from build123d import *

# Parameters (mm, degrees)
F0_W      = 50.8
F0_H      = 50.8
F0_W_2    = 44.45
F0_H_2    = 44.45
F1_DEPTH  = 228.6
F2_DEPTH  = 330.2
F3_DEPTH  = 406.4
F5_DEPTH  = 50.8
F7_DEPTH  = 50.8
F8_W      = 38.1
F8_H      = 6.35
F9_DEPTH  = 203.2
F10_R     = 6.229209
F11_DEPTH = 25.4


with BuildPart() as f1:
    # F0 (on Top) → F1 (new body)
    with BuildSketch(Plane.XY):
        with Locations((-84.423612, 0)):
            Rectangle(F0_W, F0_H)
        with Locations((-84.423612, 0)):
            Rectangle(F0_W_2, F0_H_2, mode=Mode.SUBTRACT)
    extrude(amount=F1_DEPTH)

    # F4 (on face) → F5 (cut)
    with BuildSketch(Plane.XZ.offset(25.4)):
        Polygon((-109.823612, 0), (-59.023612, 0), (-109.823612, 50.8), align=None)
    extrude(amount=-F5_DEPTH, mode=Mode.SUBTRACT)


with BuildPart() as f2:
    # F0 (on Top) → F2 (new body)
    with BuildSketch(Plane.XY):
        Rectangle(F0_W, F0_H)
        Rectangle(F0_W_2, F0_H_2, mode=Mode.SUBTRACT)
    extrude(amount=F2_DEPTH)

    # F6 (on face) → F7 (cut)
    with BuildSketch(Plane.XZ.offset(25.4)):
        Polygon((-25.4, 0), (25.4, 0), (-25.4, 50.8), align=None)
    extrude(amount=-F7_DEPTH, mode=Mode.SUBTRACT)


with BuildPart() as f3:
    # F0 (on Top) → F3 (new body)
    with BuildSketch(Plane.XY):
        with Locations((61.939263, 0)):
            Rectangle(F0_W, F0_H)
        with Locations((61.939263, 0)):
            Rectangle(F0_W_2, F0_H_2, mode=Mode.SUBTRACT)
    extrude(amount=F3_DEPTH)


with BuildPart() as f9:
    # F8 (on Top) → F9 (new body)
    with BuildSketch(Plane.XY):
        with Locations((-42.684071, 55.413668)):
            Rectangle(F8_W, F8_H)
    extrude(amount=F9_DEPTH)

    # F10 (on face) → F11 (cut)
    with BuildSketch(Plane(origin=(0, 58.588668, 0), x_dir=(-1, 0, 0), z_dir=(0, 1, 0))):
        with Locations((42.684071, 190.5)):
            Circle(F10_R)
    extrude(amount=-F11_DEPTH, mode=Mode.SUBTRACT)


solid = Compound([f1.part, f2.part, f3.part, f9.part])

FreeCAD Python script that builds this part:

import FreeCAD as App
import Part
import Sketcher

V = App.Vector
Q = App.Units.Quantity

doc = App.newDocument("Part")
params = doc.addObject("Spreadsheet::Sheet", "Params")
for row, (alias, value) in enumerate([
    ("sketch1_width", "2 in"),
    ("sketch1_width2", "1.75 in"),
    ("pad1_length", "9 in"),
    ("sketch2_width", "2 in"),
    ("pocket1_length", "2 in"),
    ("sketch3_width", "2 in"),
    ("sketch3_width2", "1.75 in"),
    ("pad2_length", "13 in"),
    ("sketch4_width", "2 in"),
    ("pocket2_length", "2 in"),
    ("sketch5_width", "2 in"),
    ("sketch5_width2", "1.75 in"),
    ("pad3_length", "16 in"),
    ("sketch6_width", "1.5 in"),
    ("sketch6_height", "0.25 in"),
    ("pad4_length", "8 in"),
    ("pocket3_length", "1 in"),
], start=1):
    params.set(f"A{row}", alias)
    params.set(f"B{row}", "=" + value)
    params.setAlias(f"B{row}", alias)

body = doc.addObject("PartDesign::Body", "Body")

# Sketch on XY plane
sketch1 = doc.addObject("Sketcher::SketchObject", "Sketch")
body.addObject(sketch1)
sketch1.AttachmentSupport = (doc.XY_Plane, [""])
sketch1.MapMode = "FlatFace"
sketch1.addGeometry([
    Part.LineSegment(V(-109.823612, 25.4, 0), V(-109.823612, -25.4, 0)),  # 0
    Part.LineSegment(V(-109.823612, -25.4, 0), V(-59.023612, -25.4, 0)),  # 1
    Part.LineSegment(V(-59.023612, -25.4, 0), V(-59.023612, 25.4, 0)),  # 2
    Part.LineSegment(V(-59.023612, 25.4, 0), V(-109.823612, 25.4, 0)),  # 3
    Part.LineSegment(V(-62.198612, -22.225, 0), V(-106.648612, -22.225, 0)),  # 4
    Part.LineSegment(V(-106.648612, -22.225, 0), V(-106.648612, 22.225, 0)),  # 5
    Part.LineSegment(V(-106.648612, 22.225, 0), V(-62.198612, 22.225, 0)),  # 6
    Part.LineSegment(V(-62.198612, 22.225, 0), V(-62.198612, -22.225, 0)),  # 7
], False)
sketch1.addConstraint([
    Sketcher.Constraint("Coincident", 0, 2, 1, 1),
    Sketcher.Constraint("Coincident", 1, 2, 2, 1),
    Sketcher.Constraint("Coincident", 2, 2, 3, 1),
    Sketcher.Constraint("Coincident", 3, 2, 0, 1),
    Sketcher.Constraint("Coincident", 4, 2, 5, 1),
    Sketcher.Constraint("Coincident", 5, 2, 6, 1),
    Sketcher.Constraint("Coincident", 6, 2, 7, 1),
    Sketcher.Constraint("Coincident", 7, 2, 4, 1),
    Sketcher.Constraint("Vertical", 0),
    Sketcher.Constraint("Horizontal", 1),
    Sketcher.Constraint("Vertical", 2),
    Sketcher.Constraint("Horizontal", 3),
    Sketcher.Constraint("Horizontal", 4),
    Sketcher.Constraint("Vertical", 5),
    Sketcher.Constraint("Horizontal", 6),
    Sketcher.Constraint("Vertical", 7),
    Sketcher.Constraint("Equal", 3, 0),
    Sketcher.Constraint("Equal", 6, 5),
    Sketcher.Constraint("DistanceX", 1, 1, 1, 2, Q("2 in")),
    Sketcher.Constraint("DistanceY", 0, 2, -1, 1, Q("1 in")),
    Sketcher.Constraint("DistanceX", 4, 2, 4, 1, Q("1.75 in")),
    Sketcher.Constraint("DistanceY", 4, 2, -1, 1, Q("0.875 in")),
    Sketcher.Constraint("DistanceX", 0, 2, 4, 2, Q("0.125 in")),
    Sketcher.Constraint("DistanceX", 0, 2, -1, 1, Q("109.823612 mm")),
])
sketch1.setExpression("Constraints[18]", "Params.sketch1_width")
sketch1.setExpression("Constraints[20]", "Params.sketch1_width2")
pad1 = doc.addObject("PartDesign::Pad", "Pad")
body.addObject(pad1)
pad1.Profile = sketch1
pad1.setExpression("Length", "Params.pad1_length")

# Sketch on XZ plane
sketch2 = doc.addObject("Sketcher::SketchObject", "Sketch001")
body.addObject(sketch2)
sketch2.AttachmentSupport = (doc.XZ_Plane, [""])
sketch2.MapMode = "FlatFace"
sketch2.AttachmentOffset = App.Placement(V(0, 0, 1 * 25.4), App.Rotation())
sketch2.addGeometry([
    Part.LineSegment(V(-109.823612, 0, 0), V(-59.023612, 0, 0)),
    Part.LineSegment(V(-59.023612, 0, 0), V(-109.823612, 50.8, 0)),
    Part.LineSegment(V(-109.823612, 50.8, 0), V(-109.823612, 0, 0)),
], False)
sketch2.addConstraint([
    Sketcher.Constraint("Coincident", 0, 2, 1, 1),
    Sketcher.Constraint("Coincident", 1, 2, 2, 1),
    Sketcher.Constraint("Coincident", 2, 2, 0, 1),
    Sketcher.Constraint("Horizontal", 0),
    Sketcher.Constraint("Vertical", 2),
    Sketcher.Constraint("PointOnObject", 0, 2, -1),
    Sketcher.Constraint("Equal", 0, 2),
    Sketcher.Constraint("DistanceX", 0, 1, 0, 2, Q("2 in")),
    Sketcher.Constraint("DistanceX", 1, 2, -1, 1, Q("109.823612 mm")),
])
sketch2.setExpression("Constraints[7]", "Params.sketch2_width")
pocket1 = doc.addObject("PartDesign::Pocket", "Pocket")
body.addObject(pocket1)
pocket1.Profile = sketch2
pocket1.setExpression("Length", "Params.pocket1_length")
body2 = doc.addObject("PartDesign::Body", "Body001")

# Sketch on XY plane
sketch3 = doc.addObject("Sketcher::SketchObject", "Sketch002")
body2.addObject(sketch3)
sketch3.AttachmentSupport = (doc.getObject("XY_Plane001"), [""])
sketch3.MapMode = "FlatFace"
sketch3.addGeometry([
    Part.LineSegment(V(-25.4, 25.4, 0), V(-25.4, -25.4, 0)),  # 0
    Part.LineSegment(V(-25.4, -25.4, 0), V(25.4, -25.4, 0)),  # 1
    Part.LineSegment(V(25.4, -25.4, 0), V(25.4, 25.4, 0)),  # 2
    Part.LineSegment(V(25.4, 25.4, 0), V(-25.4, 25.4, 0)),  # 3
    Part.LineSegment(V(22.225, -22.225, 0), V(-22.225, -22.225, 0)),  # 4
    Part.LineSegment(V(-22.225, -22.225, 0), V(-22.225, 22.225, 0)),  # 5
    Part.LineSegment(V(-22.225, 22.225, 0), V(22.225, 22.225, 0)),  # 6
    Part.LineSegment(V(22.225, 22.225, 0), V(22.225, -22.225, 0)),  # 7
], False)
sketch3.addConstraint([
    Sketcher.Constraint("Coincident", 0, 2, 1, 1),
    Sketcher.Constraint("Coincident", 1, 2, 2, 1),
    Sketcher.Constraint("Coincident", 2, 2, 3, 1),
    Sketcher.Constraint("Coincident", 3, 2, 0, 1),
    Sketcher.Constraint("Coincident", 4, 2, 5, 1),
    Sketcher.Constraint("Coincident", 5, 2, 6, 1),
    Sketcher.Constraint("Coincident", 6, 2, 7, 1),
    Sketcher.Constraint("Coincident", 7, 2, 4, 1),
    Sketcher.Constraint("Vertical", 0),
    Sketcher.Constraint("Horizontal", 1),
    Sketcher.Constraint("Vertical", 2),
    Sketcher.Constraint("Horizontal", 3),
    Sketcher.Constraint("Horizontal", 4),
    Sketcher.Constraint("Vertical", 5),
    Sketcher.Constraint("Horizontal", 6),
    Sketcher.Constraint("Vertical", 7),
    Sketcher.Constraint("Symmetric", 0, 2, 2, 2, -1, 1),
    Sketcher.Constraint("Symmetric", 4, 2, 6, 2, -1, 1),
    Sketcher.Constraint("Equal", 3, 0),
    Sketcher.Constraint("Equal", 6, 5),
    Sketcher.Constraint("DistanceX", 1, 1, 1, 2, Q("2 in")),
    Sketcher.Constraint("DistanceX", 4, 2, 4, 1, Q("1.75 in")),
])
sketch3.setExpression("Constraints[20]", "Params.sketch3_width")
sketch3.setExpression("Constraints[21]", "Params.sketch3_width2")
pad2 = doc.addObject("PartDesign::Pad", "Pad001")
body2.addObject(pad2)
pad2.Profile = sketch3
pad2.setExpression("Length", "Params.pad2_length")

# Sketch on XZ plane
sketch4 = doc.addObject("Sketcher::SketchObject", "Sketch003")
body2.addObject(sketch4)
sketch4.AttachmentSupport = (doc.getObject("XZ_Plane001"), [""])
sketch4.MapMode = "FlatFace"
sketch4.AttachmentOffset = App.Placement(V(0, 0, 1 * 25.4), App.Rotation())
sketch4.addGeometry([
    Part.LineSegment(V(-25.4, 0, 0), V(25.4, 0, 0)),
    Part.LineSegment(V(25.4, 0, 0), V(-25.4, 50.8, 0)),
    Part.LineSegment(V(-25.4, 50.8, 0), V(-25.4, 0, 0)),
], False)
sketch4.addConstraint([
    Sketcher.Constraint("Coincident", 0, 2, 1, 1),
    Sketcher.Constraint("Coincident", 1, 2, 2, 1),
    Sketcher.Constraint("Coincident", 2, 2, 0, 1),
    Sketcher.Constraint("Horizontal", 0),
    Sketcher.Constraint("Vertical", 2),
    Sketcher.Constraint("Symmetric", 0, 2, 2, 2, -1, 1),
    Sketcher.Constraint("Equal", 0, 2),
    Sketcher.Constraint("DistanceX", 0, 1, 0, 2, Q("2 in")),
])
sketch4.setExpression("Constraints[7]", "Params.sketch4_width")
pocket2 = doc.addObject("PartDesign::Pocket", "Pocket001")
body2.addObject(pocket2)
pocket2.Profile = sketch4
pocket2.setExpression("Length", "Params.pocket2_length")
body3 = doc.addObject("PartDesign::Body", "Body002")

# Sketch on XY plane
sketch5 = doc.addObject("Sketcher::SketchObject", "Sketch004")
body3.addObject(sketch5)
sketch5.AttachmentSupport = (doc.getObject("XY_Plane002"), [""])
sketch5.MapMode = "FlatFace"
sketch5.addGeometry([
    Part.LineSegment(V(36.539263, 25.4, 0), V(36.539263, -25.4, 0)),  # 0
    Part.LineSegment(V(36.539263, -25.4, 0), V(87.339263, -25.4, 0)),  # 1
    Part.LineSegment(V(87.339263, -25.4, 0), V(87.339263, 25.4, 0)),  # 2
    Part.LineSegment(V(87.339263, 25.4, 0), V(36.539263, 25.4, 0)),  # 3
    Part.LineSegment(V(84.164263, -22.225, 0), V(39.714263, -22.225, 0)),  # 4
    Part.LineSegment(V(39.714263, -22.225, 0), V(39.714263, 22.225, 0)),  # 5
    Part.LineSegment(V(39.714263, 22.225, 0), V(84.164263, 22.225, 0)),  # 6
    Part.LineSegment(V(84.164263, 22.225, 0), V(84.164263, -22.225, 0)),  # 7
], False)
sketch5.addConstraint([
    Sketcher.Constraint("Coincident", 0, 2, 1, 1),
    Sketcher.Constraint("Coincident", 1, 2, 2, 1),
    Sketcher.Constraint("Coincident", 2, 2, 3, 1),
    Sketcher.Constraint("Coincident", 3, 2, 0, 1),
    Sketcher.Constraint("Coincident", 4, 2, 5, 1),
    Sketcher.Constraint("Coincident", 5, 2, 6, 1),
    Sketcher.Constraint("Coincident", 6, 2, 7, 1),
    Sketcher.Constraint("Coincident", 7, 2, 4, 1),
    Sketcher.Constraint("Vertical", 0),
    Sketcher.Constraint("Horizontal", 1),
    Sketcher.Constraint("Vertical", 2),
    Sketcher.Constraint("Horizontal", 3),
    Sketcher.Constraint("Horizontal", 4),
    Sketcher.Constraint("Vertical", 5),
    Sketcher.Constraint("Horizontal", 6),
    Sketcher.Constraint("Vertical", 7),
    Sketcher.Constraint("Equal", 3, 0),
    Sketcher.Constraint("Equal", 6, 5),
    Sketcher.Constraint("DistanceX", 1, 1, 1, 2, Q("2 in")),
    Sketcher.Constraint("DistanceY", 0, 2, -1, 1, Q("1 in")),
    Sketcher.Constraint("DistanceX", 4, 2, 4, 1, Q("1.75 in")),
    Sketcher.Constraint("DistanceY", 4, 2, -1, 1, Q("0.875 in")),
    Sketcher.Constraint("DistanceX", 0, 2, 4, 2, Q("0.125 in")),
    Sketcher.Constraint("DistanceX", -1, 1, 0, 2, Q("36.539263 mm")),
])
sketch5.setExpression("Constraints[18]", "Params.sketch5_width")
sketch5.setExpression("Constraints[20]", "Params.sketch5_width2")
pad3 = doc.addObject("PartDesign::Pad", "Pad002")
body3.addObject(pad3)
pad3.Profile = sketch5
pad3.setExpression("Length", "Params.pad3_length")
body4 = doc.addObject("PartDesign::Body", "Body003")

# Sketch on XY plane
sketch6 = doc.addObject("Sketcher::SketchObject", "Sketch005")
body4.addObject(sketch6)
sketch6.AttachmentSupport = (doc.getObject("XY_Plane003"), [""])
sketch6.MapMode = "FlatFace"
sketch6.addGeometry([
    Part.LineSegment(V(-61.734071, 58.588668, 0), V(-61.734071, 52.238668, 0)),
    Part.LineSegment(V(-61.734071, 52.238668, 0), V(-23.634071, 52.238668, 0)),
    Part.LineSegment(V(-23.634071, 52.238668, 0), V(-23.634071, 58.588668, 0)),
    Part.LineSegment(V(-23.634071, 58.588668, 0), V(-61.734071, 58.588668, 0)),
], False)
sketch6.addConstraint([
    Sketcher.Constraint("Coincident", 0, 2, 1, 1),
    Sketcher.Constraint("Coincident", 1, 2, 2, 1),
    Sketcher.Constraint("Coincident", 2, 2, 3, 1),
    Sketcher.Constraint("Coincident", 3, 2, 0, 1),
    Sketcher.Constraint("Vertical", 0),
    Sketcher.Constraint("Horizontal", 1),
    Sketcher.Constraint("Vertical", 2),
    Sketcher.Constraint("Horizontal", 3),
    Sketcher.Constraint("DistanceX", 1, 1, 1, 2, Q("1.5 in")),
    Sketcher.Constraint("DistanceY", 0, 2, 0, 1, Q("0.25 in")),
    Sketcher.Constraint("DistanceX", 0, 2, -1, 1, Q("61.734071 mm")),
    Sketcher.Constraint("DistanceY", -1, 1, 0, 2, Q("52.238668 mm")),
])
sketch6.setExpression("Constraints[8]", "Params.sketch6_width")
sketch6.setExpression("Constraints[9]", "Params.sketch6_height")
pad4 = doc.addObject("PartDesign::Pad", "Pad003")
body4.addObject(pad4)
pad4.Profile = sketch6
pad4.setExpression("Length", "Params.pad4_length")

# Sketch on XZ plane
sketch7 = doc.addObject("Sketcher::SketchObject", "Sketch006")
body4.addObject(sketch7)
sketch7.AttachmentSupport = (doc.getObject("XZ_Plane003"), [""])
sketch7.MapMode = "FlatFace"
sketch7.AttachmentOffset = App.Placement(V(0, 0, -58.588668), App.Rotation())
sketch7.addGeometry(Part.Circle(V(-42.684071, 190.5, 0), V(0, 0, 1), 6.229209), False)
sketch7.addConstraint([
    Sketcher.Constraint("DistanceY", -1, 1, 0, 3, Q("7.5 in")),
    Sketcher.Constraint("Diameter", 0, Q("12.458418 mm")),
    Sketcher.Constraint("DistanceX", 0, 3, -1, 1, Q("42.684071 mm")),
])
pocket3 = doc.addObject("PartDesign::Pocket", "Pocket002")
body4.addObject(pocket3)
pocket3.Profile = sketch7
pocket3.setExpression("Length", "Params.pocket3_length")
pocket3.Reversed = True

doc.recompute()
